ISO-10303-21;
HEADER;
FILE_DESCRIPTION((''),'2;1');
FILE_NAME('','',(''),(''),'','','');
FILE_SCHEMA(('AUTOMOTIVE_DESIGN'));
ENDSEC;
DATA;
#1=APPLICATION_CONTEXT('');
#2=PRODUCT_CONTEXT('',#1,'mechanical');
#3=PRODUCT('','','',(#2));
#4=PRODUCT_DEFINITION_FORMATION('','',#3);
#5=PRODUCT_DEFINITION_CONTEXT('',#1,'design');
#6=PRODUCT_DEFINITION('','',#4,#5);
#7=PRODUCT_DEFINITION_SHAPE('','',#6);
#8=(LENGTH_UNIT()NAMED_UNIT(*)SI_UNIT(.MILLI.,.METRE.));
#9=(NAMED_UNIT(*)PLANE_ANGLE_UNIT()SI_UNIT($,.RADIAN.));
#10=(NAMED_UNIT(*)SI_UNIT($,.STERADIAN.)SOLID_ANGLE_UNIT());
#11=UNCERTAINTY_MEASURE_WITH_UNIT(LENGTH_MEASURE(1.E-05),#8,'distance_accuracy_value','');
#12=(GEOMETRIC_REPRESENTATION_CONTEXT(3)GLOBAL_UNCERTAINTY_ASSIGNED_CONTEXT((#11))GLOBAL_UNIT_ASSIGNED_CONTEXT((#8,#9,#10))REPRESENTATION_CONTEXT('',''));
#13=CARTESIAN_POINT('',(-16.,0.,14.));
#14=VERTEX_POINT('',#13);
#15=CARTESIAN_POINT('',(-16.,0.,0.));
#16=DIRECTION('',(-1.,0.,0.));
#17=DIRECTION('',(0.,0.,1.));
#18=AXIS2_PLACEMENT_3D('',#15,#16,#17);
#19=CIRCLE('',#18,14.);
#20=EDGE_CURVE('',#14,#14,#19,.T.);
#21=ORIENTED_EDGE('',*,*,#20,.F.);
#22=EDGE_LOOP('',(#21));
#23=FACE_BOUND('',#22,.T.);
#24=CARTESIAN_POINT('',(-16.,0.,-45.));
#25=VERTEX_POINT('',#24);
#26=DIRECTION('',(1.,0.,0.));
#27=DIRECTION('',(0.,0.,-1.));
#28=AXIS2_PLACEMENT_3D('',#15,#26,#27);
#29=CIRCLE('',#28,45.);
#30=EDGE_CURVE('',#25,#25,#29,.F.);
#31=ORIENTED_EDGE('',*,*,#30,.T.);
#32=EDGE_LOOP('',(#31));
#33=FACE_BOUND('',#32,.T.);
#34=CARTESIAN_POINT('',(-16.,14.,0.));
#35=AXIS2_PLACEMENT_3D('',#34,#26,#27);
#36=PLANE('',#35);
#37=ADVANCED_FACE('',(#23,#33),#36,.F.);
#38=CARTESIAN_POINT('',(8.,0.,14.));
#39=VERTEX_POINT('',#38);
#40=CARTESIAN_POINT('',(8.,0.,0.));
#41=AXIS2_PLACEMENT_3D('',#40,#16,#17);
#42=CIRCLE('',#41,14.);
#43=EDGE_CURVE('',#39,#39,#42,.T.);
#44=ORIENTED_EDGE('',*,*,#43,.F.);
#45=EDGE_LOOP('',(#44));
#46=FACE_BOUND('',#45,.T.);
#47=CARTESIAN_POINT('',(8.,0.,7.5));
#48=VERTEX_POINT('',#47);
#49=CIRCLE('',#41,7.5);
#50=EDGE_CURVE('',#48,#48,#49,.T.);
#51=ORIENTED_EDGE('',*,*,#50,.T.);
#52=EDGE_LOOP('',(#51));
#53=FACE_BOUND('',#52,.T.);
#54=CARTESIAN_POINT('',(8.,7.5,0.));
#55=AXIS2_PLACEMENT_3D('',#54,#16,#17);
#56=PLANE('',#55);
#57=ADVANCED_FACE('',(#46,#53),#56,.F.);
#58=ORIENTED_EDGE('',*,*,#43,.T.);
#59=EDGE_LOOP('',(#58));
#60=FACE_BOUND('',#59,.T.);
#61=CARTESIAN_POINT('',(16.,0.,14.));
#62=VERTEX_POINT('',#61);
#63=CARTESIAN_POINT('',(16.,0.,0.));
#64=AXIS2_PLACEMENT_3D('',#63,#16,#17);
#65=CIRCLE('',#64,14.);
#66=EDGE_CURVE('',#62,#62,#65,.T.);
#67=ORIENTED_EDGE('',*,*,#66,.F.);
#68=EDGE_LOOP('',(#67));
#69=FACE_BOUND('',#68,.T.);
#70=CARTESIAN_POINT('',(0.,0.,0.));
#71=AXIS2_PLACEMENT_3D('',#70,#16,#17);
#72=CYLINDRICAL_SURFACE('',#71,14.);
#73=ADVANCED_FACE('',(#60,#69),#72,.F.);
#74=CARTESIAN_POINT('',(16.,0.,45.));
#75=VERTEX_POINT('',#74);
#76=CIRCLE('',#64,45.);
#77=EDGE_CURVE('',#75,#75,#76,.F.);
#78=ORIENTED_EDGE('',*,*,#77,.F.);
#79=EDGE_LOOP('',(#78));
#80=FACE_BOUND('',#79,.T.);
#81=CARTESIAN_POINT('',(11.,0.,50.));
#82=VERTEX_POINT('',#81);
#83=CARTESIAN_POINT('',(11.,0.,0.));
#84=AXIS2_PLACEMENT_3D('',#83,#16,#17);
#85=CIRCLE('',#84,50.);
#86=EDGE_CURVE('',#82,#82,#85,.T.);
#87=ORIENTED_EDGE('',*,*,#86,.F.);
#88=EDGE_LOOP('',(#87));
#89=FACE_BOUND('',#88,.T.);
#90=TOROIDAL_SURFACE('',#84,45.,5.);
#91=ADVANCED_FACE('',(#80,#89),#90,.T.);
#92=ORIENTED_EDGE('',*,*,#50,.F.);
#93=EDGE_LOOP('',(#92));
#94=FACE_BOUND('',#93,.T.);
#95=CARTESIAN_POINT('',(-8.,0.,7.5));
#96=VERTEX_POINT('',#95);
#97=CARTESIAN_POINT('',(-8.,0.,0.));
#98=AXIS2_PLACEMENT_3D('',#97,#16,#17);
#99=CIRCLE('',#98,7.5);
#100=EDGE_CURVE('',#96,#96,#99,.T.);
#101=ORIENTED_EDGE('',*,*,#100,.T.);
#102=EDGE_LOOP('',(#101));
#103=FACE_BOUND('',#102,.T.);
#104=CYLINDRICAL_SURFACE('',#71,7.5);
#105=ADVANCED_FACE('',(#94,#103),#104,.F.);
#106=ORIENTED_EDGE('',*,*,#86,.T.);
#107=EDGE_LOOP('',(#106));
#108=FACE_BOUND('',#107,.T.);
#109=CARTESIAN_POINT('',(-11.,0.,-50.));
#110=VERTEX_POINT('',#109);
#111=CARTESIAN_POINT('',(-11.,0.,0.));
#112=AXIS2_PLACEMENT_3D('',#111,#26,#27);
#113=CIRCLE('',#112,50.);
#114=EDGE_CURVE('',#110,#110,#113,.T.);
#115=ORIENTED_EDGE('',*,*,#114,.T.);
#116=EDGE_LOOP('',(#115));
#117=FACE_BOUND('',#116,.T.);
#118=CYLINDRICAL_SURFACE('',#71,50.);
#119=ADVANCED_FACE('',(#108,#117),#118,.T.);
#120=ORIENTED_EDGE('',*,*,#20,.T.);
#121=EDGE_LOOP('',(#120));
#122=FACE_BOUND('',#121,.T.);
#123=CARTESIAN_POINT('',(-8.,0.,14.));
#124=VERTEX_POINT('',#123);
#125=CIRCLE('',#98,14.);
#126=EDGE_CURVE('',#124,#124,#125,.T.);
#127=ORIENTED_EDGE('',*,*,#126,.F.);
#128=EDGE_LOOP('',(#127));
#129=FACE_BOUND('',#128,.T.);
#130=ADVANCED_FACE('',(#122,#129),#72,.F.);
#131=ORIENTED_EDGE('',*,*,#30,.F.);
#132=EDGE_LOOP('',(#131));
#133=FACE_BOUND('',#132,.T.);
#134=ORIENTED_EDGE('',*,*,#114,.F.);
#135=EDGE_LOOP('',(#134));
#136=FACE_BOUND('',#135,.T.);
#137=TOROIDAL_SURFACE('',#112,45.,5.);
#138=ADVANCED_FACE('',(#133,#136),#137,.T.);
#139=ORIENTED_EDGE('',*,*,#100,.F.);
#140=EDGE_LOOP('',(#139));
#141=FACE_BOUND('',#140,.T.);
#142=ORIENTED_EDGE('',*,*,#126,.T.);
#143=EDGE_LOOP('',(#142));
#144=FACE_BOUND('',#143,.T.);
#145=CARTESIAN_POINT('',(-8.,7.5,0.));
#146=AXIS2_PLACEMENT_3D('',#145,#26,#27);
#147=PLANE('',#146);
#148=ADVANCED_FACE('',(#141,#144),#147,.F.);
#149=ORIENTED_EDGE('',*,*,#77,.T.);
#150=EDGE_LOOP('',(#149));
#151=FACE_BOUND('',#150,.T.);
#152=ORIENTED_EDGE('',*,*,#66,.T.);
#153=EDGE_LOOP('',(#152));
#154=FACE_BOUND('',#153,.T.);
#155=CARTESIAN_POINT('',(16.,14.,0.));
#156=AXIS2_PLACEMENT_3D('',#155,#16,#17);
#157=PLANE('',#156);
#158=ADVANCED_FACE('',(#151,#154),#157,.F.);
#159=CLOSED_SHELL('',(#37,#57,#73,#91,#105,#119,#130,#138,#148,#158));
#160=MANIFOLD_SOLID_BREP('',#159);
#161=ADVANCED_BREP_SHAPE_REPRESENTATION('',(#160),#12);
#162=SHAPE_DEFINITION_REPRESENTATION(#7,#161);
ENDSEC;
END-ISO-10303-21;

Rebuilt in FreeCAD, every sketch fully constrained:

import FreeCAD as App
import Part
import Sketcher

V = App.Vector
Q = App.Units.Quantity


def edges_at(feature, points):
    """Names of the edges that pass closest to the given points."""
    edges = feature.Shape.Edges
    near = lambda p: min(range(len(edges)), key=lambda i: edges[i].distToShape(Part.Vertex(*p))[0])
    return sorted({f"Edge{near(p) + 1}" for p in points})

doc = App.newDocument("Part")
params = doc.addObject("Spreadsheet::Sheet", "Params")
for row, (alias, value) in enumerate([
    ("sketch1_width", "16 mm"),
    ("sketch1_width2", "8 mm"),
    ("sketch1_height", "36 mm"),
    ("sketch1_height2", "6.5 mm"),
    ("revolution_angle", "360 deg"),
    ("fillet_radius", "5 mm"),
], start=1):
    params.set(f"A{row}", alias)
    params.set(f"B{row}", "=" + value)
    params.setAlias(f"B{row}", alias)

body = doc.addObject("PartDesign::Body", "Body")

sketch1 = body.newObject("Sketcher::SketchObject", "Sketch")
sketch1.AttachmentSupport = (doc.getObject("XY_Plane"), [""])
sketch1.MapMode = "FlatFace"
sketch1.addGeometry([
    Part.LineSegment(V(-8, 8, 0), V(8, 8, 0)),
    Part.LineSegment(V(8, 8, 0), V(8, 14, 0)),
    Part.LineSegment(V(8, 14, 0), V(16, 14, 0)),
    Part.LineSegment(V(16, 14, 0), V(16, 50, 0)),
    Part.LineSegment(V(16, 50, 0), V(-16, 50, 0)),
    Part.LineSegment(V(-16, 50, 0), V(-16, 14, 0)),
    Part.LineSegment(V(-16, 14, 0), V(-8, 14, 0)),
    Part.LineSegment(V(-8, 14, 0), V(-8, 8, 0)),
], False)
sketch1.addConstraint([
    Sketcher.Constraint("Coincident", 0, 2, 1, 1),
    Sketcher.Constraint("Coincident", 1, 2, 2, 1),
    Sketcher.Constraint("Coincident", 2, 2, 3, 1),
    Sketcher.Constraint("Coincident", 3, 2, 4, 1),
    Sketcher.Constraint("Coincident", 4, 2, 5, 1),
    Sketcher.Constraint("Coincident", 5, 2, 6, 1),
    Sketcher.Constraint("Coincident", 6, 2, 7, 1),
    Sketcher.Constraint("Coincident", 7, 2, 0, 1),
    Sketcher.Constraint("Horizontal", 0),
    Sketcher.Constraint("Vertical", 1),
    Sketcher.Constraint("Horizontal", 2),
    Sketcher.Constraint("Vertical", 3),
    Sketcher.Constraint("Horizontal", 4),
    Sketcher.Constraint("Vertical", 5),
    Sketcher.Constraint("Horizontal", 6),
    Sketcher.Constraint("Vertical", 7),
    Sketcher.Constraint("Symmetric", 2, 2, 5, 2, -2),
    Sketcher.Constraint("Equal", 2, 6),
    Sketcher.Constraint("DistanceX", 0, 1, 0, 2, Q("16 mm")),
    Sketcher.Constraint("DistanceX", 2, 1, 2, 2, Q("8 mm")),
    Sketcher.Constraint("DistanceY", 3, 1, 3, 2, Q("36 mm")),
    Sketcher.Constraint("DistanceY", 1, 1, 1, 2, Q("6.5 mm")),
    Sketcher.Constraint("DistanceY", -1, 1, 1, 2, Q("14 mm")),
])
sketch1.setExpression("Constraints[18]", "Params.sketch1_width")
sketch1.setExpression("Constraints[19]", "Params.sketch1_width2")
sketch1.setExpression("Constraints[20]", "Params.sketch1_height")
sketch1.setExpression("Constraints[21]", "Params.sketch1_height2")
revolution = body.newObject("PartDesign::Revolution", "Revolution")
revolution.Profile = sketch1
revolution.ReferenceAxis = (sketch1, ["H_Axis"])
revolution.setExpression("Angle", "Params.revolution_angle")
doc.recompute()

fillet = body.newObject("PartDesign::Fillet", "Fillet")
fillet.Base = (revolution, edges_at(revolution, [(16, 0, -50), (-16, 0, -50)]))
fillet.setExpression("Radius", "Params.fillet_radius")

doc.recompute()
